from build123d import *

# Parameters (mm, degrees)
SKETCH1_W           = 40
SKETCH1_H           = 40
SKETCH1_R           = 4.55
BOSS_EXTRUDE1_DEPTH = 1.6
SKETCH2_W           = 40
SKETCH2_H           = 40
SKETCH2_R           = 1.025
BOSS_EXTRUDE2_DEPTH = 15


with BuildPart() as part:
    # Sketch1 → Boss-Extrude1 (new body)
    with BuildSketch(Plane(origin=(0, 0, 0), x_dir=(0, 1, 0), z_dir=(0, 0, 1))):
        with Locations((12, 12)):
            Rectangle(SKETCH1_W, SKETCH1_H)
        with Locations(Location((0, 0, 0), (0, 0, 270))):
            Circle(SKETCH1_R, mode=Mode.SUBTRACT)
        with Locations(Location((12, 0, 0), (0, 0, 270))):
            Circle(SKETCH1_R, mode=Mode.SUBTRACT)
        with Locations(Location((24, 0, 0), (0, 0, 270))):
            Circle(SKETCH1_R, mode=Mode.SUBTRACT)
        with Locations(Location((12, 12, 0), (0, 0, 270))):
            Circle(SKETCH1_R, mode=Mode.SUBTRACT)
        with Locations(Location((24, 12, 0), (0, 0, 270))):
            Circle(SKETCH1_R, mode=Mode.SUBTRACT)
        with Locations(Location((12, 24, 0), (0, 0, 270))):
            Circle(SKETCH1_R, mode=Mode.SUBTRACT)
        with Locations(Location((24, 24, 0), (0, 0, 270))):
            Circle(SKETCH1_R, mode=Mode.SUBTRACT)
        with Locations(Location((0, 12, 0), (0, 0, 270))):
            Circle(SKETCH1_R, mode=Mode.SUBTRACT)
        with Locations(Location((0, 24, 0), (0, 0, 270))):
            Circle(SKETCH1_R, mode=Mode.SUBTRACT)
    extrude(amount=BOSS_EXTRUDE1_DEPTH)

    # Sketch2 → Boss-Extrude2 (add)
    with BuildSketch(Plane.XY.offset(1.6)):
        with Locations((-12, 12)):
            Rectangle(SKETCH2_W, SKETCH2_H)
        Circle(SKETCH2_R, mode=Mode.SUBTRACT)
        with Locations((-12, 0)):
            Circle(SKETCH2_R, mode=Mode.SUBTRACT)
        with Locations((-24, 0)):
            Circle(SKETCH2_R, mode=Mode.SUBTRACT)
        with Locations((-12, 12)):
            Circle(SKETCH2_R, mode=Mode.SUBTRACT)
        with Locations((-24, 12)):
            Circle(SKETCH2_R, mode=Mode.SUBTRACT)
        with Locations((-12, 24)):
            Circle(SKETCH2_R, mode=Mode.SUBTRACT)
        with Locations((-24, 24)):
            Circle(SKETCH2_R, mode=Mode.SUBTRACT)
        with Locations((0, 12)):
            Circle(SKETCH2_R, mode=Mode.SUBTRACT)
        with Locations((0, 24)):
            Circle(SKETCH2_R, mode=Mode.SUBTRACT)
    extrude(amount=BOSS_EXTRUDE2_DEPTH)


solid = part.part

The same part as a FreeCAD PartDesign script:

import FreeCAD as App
import Part
import Sketcher

doc = App.newDocument("Part")
body = doc.addObject("PartDesign::Body", "Body")

# Sketch on XY plane
sketch1 = body.newObject("Sketcher::SketchObject", "Sketch")
sketch1.AttachmentSupport = (doc.getObject("XY_Plane"), [""])
sketch1.MapMode = "FlatFace"
sketch1.addGeometry(Part.LineSegment(App.Vector(-32, -8, 0), App.Vector(8, -8, 0)), False)
sketch1.addGeometry(Part.LineSegment(App.Vector(8, -8, 0), App.Vector(8, 32, 0)), False)
sketch1.addGeometry(Part.LineSegment(App.Vector(8, 32, 0), App.Vector(-32, 32, 0)), False)
sketch1.addGeometry(Part.LineSegment(App.Vector(-32, 32, 0), App.Vector(-32, -8, 0)), False)
sketch1.addGeometry(Part.Circle(App.Vector(0, 0, 0), App.Vector(0, 0, 1), 4.5), False)
sketch1.addGeometry(Part.Circle(App.Vector(0, 12, 0), App.Vector(0, 0, 1), 4.5), False)
sketch1.addGeometry(Part.Circle(App.Vector(0, 24, 0), App.Vector(0, 0, 1), 4.5), False)
sketch1.addGeometry(Part.Circle(App.Vector(-12, 0, 0), App.Vector(0, 0, 1), 4.5), False)
sketch1.addGeometry(Part.Circle(App.Vector(-24, 0, 0), App.Vector(0, 0, 1), 4.5), False)
sketch1.addGeometry(Part.Circle(App.Vector(-12, 12, 0), App.Vector(0, 0, 1), 4.5), False)
sketch1.addGeometry(Part.Circle(App.Vector(-12, 24, 0), App.Vector(0, 0, 1), 4.5), False)
sketch1.addGeometry(Part.Circle(App.Vector(-24, 12, 0), App.Vector(0, 0, 1), 4.5), False)
sketch1.addGeometry(Part.Circle(App.Vector(-24, 24, 0), App.Vector(0, 0, 1), 4.5), False)
sketch1.addConstraint(Sketcher.Constraint("Coincident", 0, 2, 1, 1))
sketch1.addConstraint(Sketcher.Constraint("Coincident", 1, 2, 2, 1))
sketch1.addConstraint(Sketcher.Constraint("Coincident", 2, 2, 3, 1))
sketch1.addConstraint(Sketcher.Constraint("Coincident", 3, 2, 0, 1))
sketch1.addConstraint(Sketcher.Constraint("Horizontal", 0))
sketch1.addConstraint(Sketcher.Constraint("Vertical", 1))
sketch1.addConstraint(Sketcher.Constraint("Horizontal", 2))
sketch1.addConstraint(Sketcher.Constraint("Vertical", 3))
sketch1.addConstraint(Sketcher.Constraint("Coincident", 4, 3, -1, 1))
sketch1.addConstraint(Sketcher.Constraint("Equal", 4, 5))
sketch1.addConstraint(Sketcher.Constraint("Equal", 5, 6))
sketch1.addConstraint(Sketcher.Constraint("Equal", 6, 7))
sketch1.addConstraint(Sketcher.Constraint("Equal", 7, 8))
sketch1.addConstraint(Sketcher.Constraint("Equal", 8, 9))
sketch1.addConstraint(Sketcher.Constraint("Equal", 9, 10))
sketch1.addConstraint(Sketcher.Constraint("Equal", 10, 11))
sketch1.addConstraint(Sketcher.Constraint("Equal", 11, 12))
sketch1.addConstraint(Sketcher.Constraint("PointOnObject", 5, 3, -2))
sketch1.addConstraint(Sketcher.Constraint("PointOnObject", 6, 3, -2))
sketch1.addConstraint(Sketcher.Constraint("PointOnObject", 7, 3, -1))
sketch1.addConstraint(Sketcher.Constraint("PointOnObject", 8, 3, -1))
sketch1.addConstraint(Sketcher.Constraint("Horizontal", 5, 3, 9, 3))
sketch1.addConstraint(Sketcher.Constraint("Horizontal", 6, 3, 10, 3))
sketch1.addConstraint(Sketcher.Constraint("Horizontal", 9, 3, 11, 3))
sketch1.addConstraint(Sketcher.Constraint("Horizontal", 10, 3, 12, 3))
sketch1.addConstraint(Sketcher.Constraint("Vertical", 7, 3, 9, 3))
sketch1.addConstraint(Sketcher.Constraint("Vertical", 9, 3, 10, 3))
sketch1.addConstraint(Sketcher.Constraint("Vertical", 8, 3, 11, 3))
sketch1.addConstraint(Sketcher.Constraint("Vertical", 11, 3, 12, 3))
sketch1.addConstraint(Sketcher.Constraint("Equal", 2, 1))
sketch1.addConstraint(Sketcher.Constraint("Diameter", 4, 9.1))
sketch1.addConstraint(Sketcher.Constraint("DistanceX", 0, 1, 0, 2, 40.0))
sketch1.addConstraint(Sketcher.Constraint("DistanceY", -1, 1, 5, 3, 12.0))
sketch1.addConstraint(Sketcher.Constraint("DistanceY", -1, 1, 6, 3, 24.0))
sketch1.addConstraint(Sketcher.Constraint("DistanceX", 7, 3, -1, 1, 12.0))
sketch1.addConstraint(Sketcher.Constraint("DistanceX", 8, 3, -1, 1, 24.0))
sketch1.addConstraint(Sketcher.Constraint("DistanceX", -1, 1, 0, 2, 8.0))
sketch1.addConstraint(Sketcher.Constraint("DistanceY", 0, 2, -1, 1, 8.0))
pad1 = body.newObject("PartDesign::Pad", "Pad")
pad1.Profile = sketch1
pad1.Length = 1.6

# Sketch on XY plane
sketch2 = body.newObject("Sketcher::SketchObject", "Sketch001")
sketch2.AttachmentSupport = (doc.getObject("XY_Plane"), [""])
sketch2.MapMode = "FlatFace"
sketch2.AttachmentOffset = App.Placement(App.Vector(0, 0, 1.6), App.Rotation())
sketch2.addGeometry(Part.LineSegment(App.Vector(-32, 32, 0), App.Vector(-32, -8, 0)), False)
sketch2.addGeometry(Part.LineSegment(App.Vector(-32, -8, 0), App.Vector(8, -8, 0)), False)
sketch2.addGeometry(Part.LineSegment(App.Vector(8, -8, 0), App.Vector(8, 32, 0)), False)
sketch2.addGeometry(Part.LineSegment(App.Vector(8, 32, 0), App.Vector(-32, 32, 0)), False)
sketch2.addGeometry(Part.Circle(App.Vector(-24, 0, 0), App.Vector(0, 0, 1), 1), False)
sketch2.addGeometry(Part.Circle(App.Vector(-12, 0, 0), App.Vector(0, 0, 1), 1), False)
sketch2.addGeometry(Part.Circle(App.Vector(0, 0, 0), App.Vector(0, 0, 1), 1), False)
sketch2.addGeometry(Part.Circle(App.Vector(-24, 12, 0), App.Vector(0, 0, 1), 1), False)
sketch2.addGeometry(Part.Circle(App.Vector(-24, 24, 0), App.Vector(0, 0, 1), 1), False)
sketch2.addGeometry(Part.Circle(App.Vector(-12, 12, 0), App.Vector(0, 0, 1), 1), False)
sketch2.addGeometry(Part.Circle(App.Vector(0, 12, 0), App.Vector(0, 0, 1), 1), False)
sketch2.addGeometry(Part.Circle(App.Vector(-12, 24, 0), App.Vector(0, 0, 1), 1), False)
sketch2.addGeometry(Part.Circle(App.Vector(0, 24, 0), App.Vector(0, 0, 1), 1), False)
sketch2.addConstraint(Sketcher.Constraint("Coincident", 0, 2, 1, 1))
sketch2.addConstraint(Sketcher.Constraint("Coincident", 1, 2, 2, 1))
sketch2.addConstraint(Sketcher.Constraint("Coincident", 2, 2, 3, 1))
sketch2.addConstraint(Sketcher.Constraint("Coincident", 3, 2, 0, 1))
sketch2.addConstraint(Sketcher.Constraint("Vertical", 0))
sketch2.addConstraint(Sketcher.Constraint("Horizontal", 1))
sketch2.addConstraint(Sketcher.Constraint("Vertical", 2))
sketch2.addConstraint(Sketcher.Constraint("Horizontal", 3))
sketch2.addConstraint(Sketcher.Constraint("Coincident", 6, 3, -1, 1))
sketch2.addConstraint(Sketcher.Constraint("Equal", 4, 5))
sketch2.addConstraint(Sketcher.Constraint("Equal", 5, 6))
sketch2.addConstraint(Sketcher.Constraint("Equal", 6, 7))
sketch2.addConstraint(Sketcher.Constraint("Equal", 7, 8))
sketch2.addConstraint(Sketcher.Constraint("Equal", 8, 9))
sketch2.addConstraint(Sketcher.Constraint("Equal", 9, 10))
sketch2.addConstraint(Sketcher.Constraint("Equal", 10, 11))
sketch2.addConstraint(Sketcher.Constraint("Equal", 11, 12))
sketch2.addConstraint(Sketcher.Constraint("PointOnObject", 4, 3, -1))
sketch2.addConstraint(Sketcher.Constraint("PointOnObject", 5, 3, -1))
sketch2.addConstraint(Sketcher.Constraint("PointOnObject", 10, 3, -2))
sketch2.addConstraint(Sketcher.Constraint("PointOnObject", 12, 3, -2))
sketch2.addConstraint(Sketcher.Constraint("Horizontal", 7, 3, 9, 3))
sketch2.addConstraint(Sketcher.Constraint("Horizontal", 9, 3, 10, 3))
sketch2.addConstraint(Sketcher.Constraint("Horizontal", 8, 3, 11, 3))
sketch2.addConstraint(Sketcher.Constraint("Horizontal", 11, 3, 12, 3))
sketch2.addConstraint(Sketcher.Constraint("Vertical", 4, 3, 7, 3))
sketch2.addConstraint(Sketcher.Constraint("Vertical", 7, 3, 8, 3))
sketch2.addConstraint(Sketcher.Constraint("Vertical", 5, 3, 9, 3))
sketch2.addConstraint(Sketcher.Constraint("Vertical", 9, 3, 11, 3))
sketch2.addConstraint(Sketcher.Constraint("Equal", 3, 0))
sketch2.addConstraint(Sketcher.Constraint("Diameter", 4, 2.05))
sketch2.addConstraint(Sketcher.Constraint("DistanceX", 1, 1, 1, 2, 40.0))
sketch2.addConstraint(Sketcher.Constraint("DistanceX", 4, 3, -1, 1, 24.0))
sketch2.addConstraint(Sketcher.Constraint("DistanceX", 5, 3, -1, 1, 12.0))
sketch2.addConstraint(Sketcher.Constraint("DistanceY", -1, 1, 7, 3, 12.0))
sketch2.addConstraint(Sketcher.Constraint("DistanceY", -1, 1, 8, 3, 24.0))
sketch2.addConstraint(Sketcher.Constraint("DistanceX", 0, 2, -1, 1, 32.0))
sketch2.addConstraint(Sketcher.Constraint("DistanceY", 0, 2, -1, 1, 8.0))
pad2 = body.newObject("PartDesign::Pad", "Pad001")
pad2.Profile = sketch2
pad2.Length = 15

doc.recompute()
